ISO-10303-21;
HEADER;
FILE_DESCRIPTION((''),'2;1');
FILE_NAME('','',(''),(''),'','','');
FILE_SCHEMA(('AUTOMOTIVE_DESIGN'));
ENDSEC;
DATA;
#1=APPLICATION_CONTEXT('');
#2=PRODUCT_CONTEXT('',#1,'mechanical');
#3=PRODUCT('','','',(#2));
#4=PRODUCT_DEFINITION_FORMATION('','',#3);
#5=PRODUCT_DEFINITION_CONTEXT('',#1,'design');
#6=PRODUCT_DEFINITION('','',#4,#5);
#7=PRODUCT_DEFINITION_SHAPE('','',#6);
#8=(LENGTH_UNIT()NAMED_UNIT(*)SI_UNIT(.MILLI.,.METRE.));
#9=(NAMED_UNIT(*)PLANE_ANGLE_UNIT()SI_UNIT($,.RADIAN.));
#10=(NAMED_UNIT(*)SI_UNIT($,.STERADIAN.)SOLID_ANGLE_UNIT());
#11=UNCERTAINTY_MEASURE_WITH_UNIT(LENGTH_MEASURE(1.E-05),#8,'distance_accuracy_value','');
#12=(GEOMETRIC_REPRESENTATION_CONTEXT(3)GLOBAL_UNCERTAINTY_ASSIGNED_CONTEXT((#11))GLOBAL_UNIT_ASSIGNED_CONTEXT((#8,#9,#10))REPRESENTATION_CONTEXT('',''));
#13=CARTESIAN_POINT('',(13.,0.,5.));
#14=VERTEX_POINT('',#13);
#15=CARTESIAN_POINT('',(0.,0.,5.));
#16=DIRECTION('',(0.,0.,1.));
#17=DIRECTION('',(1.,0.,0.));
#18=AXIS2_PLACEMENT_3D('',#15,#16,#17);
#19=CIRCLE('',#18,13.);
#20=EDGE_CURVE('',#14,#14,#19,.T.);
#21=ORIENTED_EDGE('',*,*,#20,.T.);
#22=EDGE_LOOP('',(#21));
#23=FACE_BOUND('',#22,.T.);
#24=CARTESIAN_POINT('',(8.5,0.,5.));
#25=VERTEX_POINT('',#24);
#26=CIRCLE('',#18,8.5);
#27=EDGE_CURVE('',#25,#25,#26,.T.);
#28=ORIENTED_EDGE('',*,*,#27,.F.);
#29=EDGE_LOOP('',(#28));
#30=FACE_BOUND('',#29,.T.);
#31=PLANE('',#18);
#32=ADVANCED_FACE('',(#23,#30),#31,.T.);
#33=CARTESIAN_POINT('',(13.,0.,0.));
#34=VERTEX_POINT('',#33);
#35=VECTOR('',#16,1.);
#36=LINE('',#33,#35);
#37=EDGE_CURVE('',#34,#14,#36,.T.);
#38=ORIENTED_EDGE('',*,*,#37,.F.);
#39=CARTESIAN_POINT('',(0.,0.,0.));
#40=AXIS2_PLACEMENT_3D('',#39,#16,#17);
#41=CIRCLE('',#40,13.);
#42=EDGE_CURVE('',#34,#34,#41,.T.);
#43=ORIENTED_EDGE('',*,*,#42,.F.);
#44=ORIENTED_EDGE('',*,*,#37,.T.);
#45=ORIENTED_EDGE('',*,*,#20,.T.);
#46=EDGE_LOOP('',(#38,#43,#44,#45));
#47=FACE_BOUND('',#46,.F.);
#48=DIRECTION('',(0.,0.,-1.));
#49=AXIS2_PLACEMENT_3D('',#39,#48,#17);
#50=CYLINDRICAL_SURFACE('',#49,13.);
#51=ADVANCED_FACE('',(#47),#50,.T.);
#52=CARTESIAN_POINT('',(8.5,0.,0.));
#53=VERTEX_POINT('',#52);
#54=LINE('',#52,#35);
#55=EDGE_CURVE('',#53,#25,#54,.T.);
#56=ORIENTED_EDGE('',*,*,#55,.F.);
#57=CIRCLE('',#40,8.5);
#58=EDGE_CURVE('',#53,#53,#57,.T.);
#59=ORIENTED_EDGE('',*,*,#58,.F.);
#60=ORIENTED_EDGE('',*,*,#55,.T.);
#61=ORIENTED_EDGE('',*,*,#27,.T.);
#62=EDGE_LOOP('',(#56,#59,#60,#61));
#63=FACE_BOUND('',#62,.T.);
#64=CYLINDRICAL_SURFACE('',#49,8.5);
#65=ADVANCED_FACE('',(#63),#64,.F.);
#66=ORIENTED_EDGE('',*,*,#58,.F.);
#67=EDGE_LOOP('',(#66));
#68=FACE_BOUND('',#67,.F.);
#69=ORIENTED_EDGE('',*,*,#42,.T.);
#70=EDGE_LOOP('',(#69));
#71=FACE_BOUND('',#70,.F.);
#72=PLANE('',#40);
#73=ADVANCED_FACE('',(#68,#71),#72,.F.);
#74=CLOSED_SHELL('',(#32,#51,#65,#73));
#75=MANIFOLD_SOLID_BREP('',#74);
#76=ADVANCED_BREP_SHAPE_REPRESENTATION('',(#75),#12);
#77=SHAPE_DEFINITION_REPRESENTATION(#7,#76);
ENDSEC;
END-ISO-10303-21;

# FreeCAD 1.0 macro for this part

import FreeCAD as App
import Part
import Sketcher

V = App.Vector
Q = App.Units.Quantity

doc = App.newDocument("Part")
body = doc.addObject("PartDesign::Body", "Body")

# Sketch on XY plane
sketch1 = doc.addObject("Sketcher::SketchObject", "Sketch")
body.addObject(sketch1)
sketch1.AttachmentSupport = (doc.XY_Plane, [""])
sketch1.MapMode = "FlatFace"
sketch1.addGeometry(Part.Circle(V(0, 0, 0), V(0, 0, 1), 13), False)
sketch1.addGeometry(Part.Circle(V(0, 0, 0), V(0, 0, 1), 8.5), False)
sketch1.addConstraint(Sketcher.Constraint("Coincident", 0, 3, -1, 1))
sketch1.addConstraint(Sketcher.Constraint("Coincident", 1, 3, -1, 1))
sketch1.addConstraint(Sketcher.Constraint("Diameter", 0, Q("26 mm")))
sketch1.addConstraint(Sketcher.Constraint("Diameter", 1, Q("17 mm")))
pad1 = doc.addObject("PartDesign::Pad", "Pad")
body.addObject(pad1)
pad1.Profile = sketch1
pad1.Length = 5

doc.recompute()
